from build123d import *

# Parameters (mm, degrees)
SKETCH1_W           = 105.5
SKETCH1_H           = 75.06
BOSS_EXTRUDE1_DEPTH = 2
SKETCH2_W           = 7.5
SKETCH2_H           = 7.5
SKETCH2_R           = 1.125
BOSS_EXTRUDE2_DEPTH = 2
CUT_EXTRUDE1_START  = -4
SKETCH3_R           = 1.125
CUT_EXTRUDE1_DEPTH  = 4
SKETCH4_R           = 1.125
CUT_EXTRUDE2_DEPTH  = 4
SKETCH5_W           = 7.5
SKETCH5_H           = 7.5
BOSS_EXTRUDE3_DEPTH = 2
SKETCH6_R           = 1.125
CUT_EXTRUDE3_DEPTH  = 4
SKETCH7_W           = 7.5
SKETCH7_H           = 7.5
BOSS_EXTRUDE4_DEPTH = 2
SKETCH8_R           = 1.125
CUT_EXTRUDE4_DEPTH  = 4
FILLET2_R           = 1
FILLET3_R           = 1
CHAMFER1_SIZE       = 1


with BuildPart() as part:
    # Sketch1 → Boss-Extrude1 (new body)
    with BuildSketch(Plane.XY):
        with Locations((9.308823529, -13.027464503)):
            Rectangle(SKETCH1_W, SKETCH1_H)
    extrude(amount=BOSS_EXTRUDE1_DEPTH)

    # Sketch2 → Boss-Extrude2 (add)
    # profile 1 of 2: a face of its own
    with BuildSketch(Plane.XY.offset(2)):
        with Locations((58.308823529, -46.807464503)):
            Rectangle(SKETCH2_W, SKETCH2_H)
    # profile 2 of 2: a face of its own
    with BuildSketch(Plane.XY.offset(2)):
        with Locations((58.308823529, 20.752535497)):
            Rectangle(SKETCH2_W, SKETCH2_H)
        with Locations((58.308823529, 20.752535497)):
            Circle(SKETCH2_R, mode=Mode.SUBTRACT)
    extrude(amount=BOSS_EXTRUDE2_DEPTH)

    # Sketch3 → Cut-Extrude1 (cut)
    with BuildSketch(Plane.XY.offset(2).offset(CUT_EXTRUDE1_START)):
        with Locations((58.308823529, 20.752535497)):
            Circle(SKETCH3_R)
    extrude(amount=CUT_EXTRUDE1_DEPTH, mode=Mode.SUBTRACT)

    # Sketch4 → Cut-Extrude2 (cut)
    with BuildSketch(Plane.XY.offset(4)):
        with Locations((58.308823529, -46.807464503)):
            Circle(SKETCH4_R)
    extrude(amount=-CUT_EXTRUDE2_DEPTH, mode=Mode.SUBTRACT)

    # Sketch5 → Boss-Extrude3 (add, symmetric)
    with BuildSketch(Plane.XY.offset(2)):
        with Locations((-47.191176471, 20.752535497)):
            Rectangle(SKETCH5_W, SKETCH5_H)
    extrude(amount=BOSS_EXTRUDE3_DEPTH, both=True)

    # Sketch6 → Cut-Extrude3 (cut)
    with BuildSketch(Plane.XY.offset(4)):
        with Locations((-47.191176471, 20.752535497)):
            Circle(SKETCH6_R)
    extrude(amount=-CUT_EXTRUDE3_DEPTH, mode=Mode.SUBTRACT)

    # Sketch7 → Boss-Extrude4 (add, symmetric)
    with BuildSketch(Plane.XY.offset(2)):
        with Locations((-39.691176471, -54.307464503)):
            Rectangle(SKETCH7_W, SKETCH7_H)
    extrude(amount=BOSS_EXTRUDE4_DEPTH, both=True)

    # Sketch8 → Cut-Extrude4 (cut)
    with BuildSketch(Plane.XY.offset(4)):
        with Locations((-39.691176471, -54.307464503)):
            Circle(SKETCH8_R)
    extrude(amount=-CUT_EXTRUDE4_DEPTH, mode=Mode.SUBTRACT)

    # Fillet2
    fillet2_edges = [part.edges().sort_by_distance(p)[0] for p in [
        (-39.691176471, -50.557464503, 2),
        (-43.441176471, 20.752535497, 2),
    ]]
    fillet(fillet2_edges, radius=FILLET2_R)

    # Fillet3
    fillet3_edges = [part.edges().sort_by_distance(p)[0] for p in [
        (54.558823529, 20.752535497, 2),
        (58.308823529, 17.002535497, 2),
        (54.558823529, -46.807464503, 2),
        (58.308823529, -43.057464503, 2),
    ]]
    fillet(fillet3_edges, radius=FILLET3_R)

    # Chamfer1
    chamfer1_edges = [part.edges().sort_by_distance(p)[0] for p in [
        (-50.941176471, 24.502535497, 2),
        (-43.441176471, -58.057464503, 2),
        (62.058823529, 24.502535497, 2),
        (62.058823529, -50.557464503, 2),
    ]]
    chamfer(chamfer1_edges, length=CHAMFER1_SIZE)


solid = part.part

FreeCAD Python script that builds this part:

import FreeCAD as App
import Part
import Sketcher
Q = App.Units.Quantity


def edges_at(feature, points):
    """Names of the edges that pass closest to the given points."""
    edges = feature.Shape.Edges
    near = lambda p: min(range(len(edges)), key=lambda i: edges[i].distToShape(Part.Vertex(*p))[0])
    return sorted({f"Edge{near(p) + 1}" for p in points})

doc = App.newDocument("Part")
params = doc.addObject("Spreadsheet::Sheet", "Params")
for row, (alias, value) in enumerate([
    ("sketch1_width", "105.5 mm"),
    ("sketch1_height", "75.06 mm"),
    ("pad1_length", "2 mm"),
    ("sketch2_diameter", "2.25 mm"),
    ("sketch2_width", "7.5 mm"),
    ("pad2_length", "2 mm"),
    ("sketch3_diameter", "2.25 mm"),
    ("pocket1_length", "4 mm"),
    ("sketch4_diameter", "2.25 mm"),
    ("pocket2_length", "4 mm"),
    ("sketch5_width", "7.5 mm"),
    ("pad3_length", "4 mm"),
    ("sketch6_diameter", "2.25 mm"),
    ("pocket3_length", "4 mm"),
    ("sketch7_width", "7.5 mm"),
    ("pad4_length", "4 mm"),
    ("sketch8_diameter", "2.25 mm"),
    ("pocket4_length", "4 mm"),
    ("fillet_radius", "1 mm"),
    ("fillet2_radius", "1 mm"),
    ("chamfer_size", "1 mm"),
], start=1):
    params.set(f"A{row}", alias)
    params.set(f"B{row}", "=" + value)
    params.setAlias(f"B{row}", alias)

body = doc.addObject("PartDesign::Body", "Body")

# Sketch on XY plane
sketch1 = doc.addObject("Sketcher::SketchObject", "Sketch")
body.addObject(sketch1)
sketch1.AttachmentSupport = (doc.XY_Plane, [""])
sketch1.MapMode = "FlatFace"
sketch1.addGeometry([
    Part.LineSegment(App.Vector(-43, 25, 0), App.Vector(-43, -51, 0)),
    Part.LineSegment(App.Vector(-43, -51, 0), App.Vector(62, -51, 0)),
    Part.LineSegment(App.Vector(62, -51, 0), App.Vector(62, 25, 0)),
    Part.LineSegment(App.Vector(62, 25, 0), App.Vector(-43, 25, 0)),
], False)
sketch1.addConstraint([
    Sketcher.Constraint("Coincident", 0, 2, 1, 1),
    Sketcher.Constraint("Coincident", 1, 2, 2, 1),
    Sketcher.Constraint("Coincident", 2, 2, 3, 1),
    Sketcher.Constraint("Coincident", 3, 2, 0, 1),
    Sketcher.Constraint("Vertical", 0),
    Sketcher.Constraint("Horizontal", 1),
    Sketcher.Constraint("Vertical", 2),
    Sketcher.Constraint("Horizontal", 3),
    Sketcher.Constraint("DistanceX", 1, 1, 1, 2, Q("105.5 mm")),
    Sketcher.Constraint("DistanceY", 0, 2, 0, 1, Q("75.06 mm")),
    Sketcher.Constraint("DistanceX", 0, 2, -1, 1, Q("43.441176 mm")),
    Sketcher.Constraint("DistanceY", 0, 2, -1, 1, Q("50.557465 mm")),
])
sketch1.setExpression("Constraints[8]", "Params.sketch1_width")
sketch1.setExpression("Constraints[9]", "Params.sketch1_height")
pad1 = doc.addObject("PartDesign::Pad", "Pad")
body.addObject(pad1)
pad1.Profile = sketch1
pad1.setExpression("Length", "Params.pad1_length")

# Sketch on XY plane
sketch2 = doc.addObject("Sketcher::SketchObject", "Sketch001")
body.addObject(sketch2)
sketch2.AttachmentSupport = (doc.XY_Plane, [""])
sketch2.MapMode = "FlatFace"
sketch2.AttachmentOffset = App.Placement(App.Vector(0, 0, 2), App.Rotation())
sketch2.addGeometry([
    Part.LineSegment(App.Vector(54.6, -43.1, 0), App.Vector(54.6, -50.6, 0)),  # 0
    Part.LineSegment(App.Vector(54.6, -50.6, 0), App.Vector(62.1, -50.6, 0)),  # 1
    Part.LineSegment(App.Vector(62.1, -50.6, 0), App.Vector(62.1, -43.1, 0)),  # 2
    Part.LineSegment(App.Vector(62.1, -43.1, 0), App.Vector(54.6, -43.1, 0)),  # 3
    Part.LineSegment(App.Vector(54.6, 24.5, 0), App.Vector(54.6, 17, 0)),  # 4
    Part.LineSegment(App.Vector(54.6, 17, 0), App.Vector(62.1, 17, 0)),  # 5
    Part.LineSegment(App.Vector(62.1, 17, 0), App.Vector(62.1, 24.5, 0)),  # 6
    Part.LineSegment(App.Vector(62.1, 24.5, 0), App.Vector(54.6, 24.5, 0)),  # 7
    Part.Circle(App.Vector(58.3, 20.8, 0), App.Vector(0, 0, 1), 1.1),  # 8
], False)
sketch2.addConstraint([
    Sketcher.Constraint("Coincident", 0, 2, 1, 1),
    Sketcher.Constraint("Coincident", 1, 2, 2, 1),
    Sketcher.Constraint("Coincident", 2, 2, 3, 1),
    Sketcher.Constraint("Coincident", 3, 2, 0, 1),
    Sketcher.Constraint("Coincident", 4, 2, 5, 1),
    Sketcher.Constraint("Coincident", 5, 2, 6, 1),
    Sketcher.Constraint("Coincident", 6, 2, 7, 1),
    Sketcher.Constraint("Coincident", 7, 2, 4, 1),
    Sketcher.Constraint("Vertical", 0),
    Sketcher.Constraint("Horizontal", 1),
    Sketcher.Constraint("Vertical", 2),
    Sketcher.Constraint("Horizontal", 3),
    Sketcher.Constraint("Vertical", 4),
    Sketcher.Constraint("Horizontal", 5),
    Sketcher.Constraint("Vertical", 6),
    Sketcher.Constraint("Horizontal", 7),
    Sketcher.Constraint("Vertical", 3, 2, 4, 2),
    Sketcher.Constraint("Vertical", 2, 2, 5, 2),
    Sketcher.Constraint("Equal", 7, 0),
    Sketcher.Constraint("Equal", 2, 4),
    Sketcher.Constraint("Diameter", 8, Q("2.25 mm")),
    Sketcher.Constraint("DistanceX", 1, 1, 1, 2, Q("7.5 mm")),
    Sketcher.Constraint("DistanceX", 0, 2, 8, 3, Q("3.75 mm")),
    Sketcher.Constraint("DistanceY", 0, 2, 8, 3, Q("71.31 mm")),
    Sketcher.Constraint("DistanceY", 4, 2, 8, 3, Q("3.75 mm")),
    Sketcher.Constraint("DistanceX", -1, 1, 8, 3, Q("58.308824 mm")),
    Sketcher.Constraint("DistanceY", -1, 1, 8, 3, Q("20.752535 mm")),
])
sketch2.setExpression("Constraints[20]", "Params.sketch2_diameter")
sketch2.setExpression("Constraints[21]", "Params.sketch2_width")
pad2 = doc.addObject("PartDesign::Pad", "Pad001")
body.addObject(pad2)
pad2.Profile = sketch2
pad2.setExpression("Length", "Params.pad2_length")

# Sketch on XY plane
sketch3 = doc.addObject("Sketcher::SketchObject", "Sketch002")
body.addObject(sketch3)
sketch3.AttachmentSupport = (doc.XY_Plane, [""])
sketch3.MapMode = "FlatFace"
sketch3.AttachmentOffset = App.Placement(App.Vector(0, 0, -2), App.Rotation())
sketch3.addGeometry(Part.Circle(App.Vector(58.3, 20.8, 0), App.Vector(0, 0, 1), 1.1), False)
sketch3.addConstraint([
    Sketcher.Constraint("Diameter", 0, Q("2.25 mm")),
    Sketcher.Constraint("DistanceX", -1, 1, 0, 3, Q("58.308824 mm")),
    Sketcher.Constraint("DistanceY", -1, 1, 0, 3, Q("20.752535 mm")),
])
sketch3.setExpression("Constraints[0]", "Params.sketch3_diameter")
pocket1 = doc.addObject("PartDesign::Pocket", "Pocket")
body.addObject(pocket1)
pocket1.Profile = sketch3
pocket1.setExpression("Length", "Params.pocket1_length")
pocket1.Reversed = True

# Sketch on XY plane
sketch4 = doc.addObject("Sketcher::SketchObject", "Sketch003")
body.addObject(sketch4)
sketch4.AttachmentSupport = (doc.XY_Plane, [""])
sketch4.MapMode = "FlatFace"
sketch4.AttachmentOffset = App.Placement(App.Vector(0, 0, 4), App.Rotation())
sketch4.addGeometry(Part.Circle(App.Vector(58.3, -46.8, 0), App.Vector(0, 0, 1), 1.1), False)
sketch4.addConstraint([
    Sketcher.Constraint("Diameter", 0, Q("2.25 mm")),
    Sketcher.Constraint("DistanceX", -1, 1, 0, 3, Q("58.308824 mm")),
    Sketcher.Constraint("DistanceY", 0, 3, -1, 1, Q("46.807465 mm")),
])
sketch4.setExpression("Constraints[0]", "Params.sketch4_diameter")
pocket2 = doc.addObject("PartDesign::Pocket", "Pocket001")
body.addObject(pocket2)
pocket2.Profile = sketch4
pocket2.setExpression("Length", "Params.pocket2_length")

# Sketch on XY plane
sketch5 = doc.addObject("Sketcher::SketchObject", "Sketch004")
body.addObject(sketch5)
sketch5.AttachmentSupport = (doc.XY_Plane, [""])
sketch5.MapMode = "FlatFace"
sketch5.AttachmentOffset = App.Placement(App.Vector(0, 0, 2), App.Rotation())
sketch5.addGeometry([
    Part.LineSegment(App.Vector(-51, 25, 0), App.Vector(-51, 17, 0)),
    Part.LineSegment(App.Vector(-51, 17, 0), App.Vector(-43, 17, 0)),
    Part.LineSegment(App.Vector(-43, 17, 0), App.Vector(-43, 25, 0)),
    Part.LineSegment(App.Vector(-43, 25, 0), App.Vector(-51, 25, 0)),
], False)
sketch5.addConstraint([
    Sketcher.Constraint("Coincident", 0, 2, 1, 1),
    Sketcher.Constraint("Coincident", 1, 2, 2, 1),
    Sketcher.Constraint("Coincident", 2, 2, 3, 1),
    Sketcher.Constraint("Coincident", 3, 2, 0, 1),
    Sketcher.Constraint("Vertical", 0),
    Sketcher.Constraint("Horizontal", 1),
    Sketcher.Constraint("Vertical", 2),
    Sketcher.Constraint("Horizontal", 3),
    Sketcher.Constraint("Equal", 3, 0),
    Sketcher.Constraint("DistanceX", 1, 1, 1, 2, Q("7.5 mm")),
    Sketcher.Constraint("DistanceX", 0, 2, -1, 1, Q("50.941176 mm")),
    Sketcher.Constraint("DistanceY", -1, 1, 0, 2, Q("17.002535 mm")),
])
sketch5.setExpression("Constraints[9]", "Params.sketch5_width")
pad3 = doc.addObject("PartDesign::Pad", "Pad002")
body.addObject(pad3)
pad3.Profile = sketch5
pad3.setExpression("Length", "Params.pad3_length")
pad3.Midplane = True

# Sketch on XY plane
sketch6 = doc.addObject("Sketcher::SketchObject", "Sketch005")
body.addObject(sketch6)
sketch6.AttachmentSupport = (doc.XY_Plane, [""])
sketch6.MapMode = "FlatFace"
sketch6.AttachmentOffset = App.Placement(App.Vector(0, 0, 4), App.Rotation())
sketch6.addGeometry(Part.Circle(App.Vector(-47.2, 20.8, 0), App.Vector(0, 0, 1), 1.1), False)
sketch6.addConstraint([
    Sketcher.Constraint("Diameter", 0, Q("2.25 mm")),
    Sketcher.Constraint("DistanceX", 0, 3, -1, 1, Q("47.191176 mm")),
    Sketcher.Constraint("DistanceY", -1, 1, 0, 3, Q("20.752535 mm")),
])
sketch6.setExpression("Constraints[0]", "Params.sketch6_diameter")
pocket3 = doc.addObject("PartDesign::Pocket", "Pocket002")
body.addObject(pocket3)
pocket3.Profile = sketch6
pocket3.setExpression("Length", "Params.pocket3_length")

# Sketch on XY plane
sketch7 = doc.addObject("Sketcher::SketchObject", "Sketch006")
body.addObject(sketch7)
sketch7.AttachmentSupport = (doc.XY_Plane, [""])
sketch7.MapMode = "FlatFace"
sketch7.AttachmentOffset = App.Placement(App.Vector(0, 0, 2), App.Rotation())
sketch7.addGeometry([
    Part.LineSegment(App.Vector(-43, -51, 0), App.Vector(-43, -58, 0)),
    Part.LineSegment(App.Vector(-43, -58, 0), App.Vector(-36, -58, 0)),
    Part.LineSegment(App.Vector(-36, -58, 0), App.Vector(-36, -51, 0)),
    Part.LineSegment(App.Vector(-36, -51, 0), App.Vector(-43, -51, 0)),
], False)
sketch7.addConstraint([
    Sketcher.Constraint("Coincident", 0, 2, 1, 1),
    Sketcher.Constraint("Coincident", 1, 2, 2, 1),
    Sketcher.Constraint("Coincident", 2, 2, 3, 1),
    Sketcher.Constraint("Coincident", 3, 2, 0, 1),
    Sketcher.Constraint("Vertical", 0),
    Sketcher.Constraint("Horizontal", 1),
    Sketcher.Constraint("Vertical", 2),
    Sketcher.Constraint("Horizontal", 3),
    Sketcher.Constraint("Equal", 3, 0),
    Sketcher.Constraint("DistanceX", 1, 1, 1, 2, Q("7.5 mm")),
    Sketcher.Constraint("DistanceX", 0, 2, -1, 1, Q("43.441176 mm")),
    Sketcher.Constraint("DistanceY", 0, 2, -1, 1, Q("58.057465 mm")),
])
sketch7.setExpression("Constraints[9]", "Params.sketch7_width")
pad4 = doc.addObject("PartDesign::Pad", "Pad003")
body.addObject(pad4)
pad4.Profile = sketch7
pad4.setExpression("Length", "Params.pad4_length")
pad4.Midplane = True

# Sketch on XY plane
sketch8 = doc.addObject("Sketcher::SketchObject", "Sketch007")
body.addObject(sketch8)
sketch8.AttachmentSupport = (doc.XY_Plane, [""])
sketch8.MapMode = "FlatFace"
sketch8.AttachmentOffset = App.Placement(App.Vector(0, 0, 4), App.Rotation())
sketch8.addGeometry(Part.Circle(App.Vector(-39.7, -54.3, 0), App.Vector(0, 0, 1), 1.1), False)
sketch8.addConstraint([
    Sketcher.Constraint("Diameter", 0, Q("2.25 mm")),
    Sketcher.Constraint("DistanceX", 0, 3, -1, 1, Q("39.691176 mm")),
    Sketcher.Constraint("DistanceY", 0, 3, -1, 1, Q("54.307465 mm")),
])
sketch8.setExpression("Constraints[0]", "Params.sketch8_diameter")
pocket4 = doc.addObject("PartDesign::Pocket", "Pocket003")
body.addObject(pocket4)
pocket4.Profile = sketch8
pocket4.setExpression("Length", "Params.pocket4_length")
doc.recompute()

fillet = doc.addObject("PartDesign::Fillet", "Fillet")
body.addObject(fillet)
fillet.Base = (pocket4, edges_at(pocket4, [(-39.691, -50.557, 2), (-43.441, 20.753, 2)]))
fillet.setExpression("Radius", "Params.fillet_radius")
doc.recompute()

fillet2 = doc.addObject("PartDesign::Fillet", "Fillet001")
body.addObject(fillet2)
fillet2.Base = (fillet, edges_at(fillet, [
    (54.559, 20.753, 2),
    (58.309, 17.003, 2),
    (54.559, -46.807, 2),
    (58.309, -43.057, 2),
]))
fillet2.setExpression("Radius", "Params.fillet2_radius")
doc.recompute()

chamfer = doc.addObject("PartDesign::Chamfer", "Chamfer")
body.addObject(chamfer)
chamfer.Base = (fillet2, edges_at(fillet2, [
    (-50.941, 24.503, 2),
    (-43.441, -58.057, 2),
    (62.059, 24.503, 2),
    (62.059, -50.557, 2),
]))
chamfer.setExpression("Size", "Params.chamfer_size")

doc.recompute()
